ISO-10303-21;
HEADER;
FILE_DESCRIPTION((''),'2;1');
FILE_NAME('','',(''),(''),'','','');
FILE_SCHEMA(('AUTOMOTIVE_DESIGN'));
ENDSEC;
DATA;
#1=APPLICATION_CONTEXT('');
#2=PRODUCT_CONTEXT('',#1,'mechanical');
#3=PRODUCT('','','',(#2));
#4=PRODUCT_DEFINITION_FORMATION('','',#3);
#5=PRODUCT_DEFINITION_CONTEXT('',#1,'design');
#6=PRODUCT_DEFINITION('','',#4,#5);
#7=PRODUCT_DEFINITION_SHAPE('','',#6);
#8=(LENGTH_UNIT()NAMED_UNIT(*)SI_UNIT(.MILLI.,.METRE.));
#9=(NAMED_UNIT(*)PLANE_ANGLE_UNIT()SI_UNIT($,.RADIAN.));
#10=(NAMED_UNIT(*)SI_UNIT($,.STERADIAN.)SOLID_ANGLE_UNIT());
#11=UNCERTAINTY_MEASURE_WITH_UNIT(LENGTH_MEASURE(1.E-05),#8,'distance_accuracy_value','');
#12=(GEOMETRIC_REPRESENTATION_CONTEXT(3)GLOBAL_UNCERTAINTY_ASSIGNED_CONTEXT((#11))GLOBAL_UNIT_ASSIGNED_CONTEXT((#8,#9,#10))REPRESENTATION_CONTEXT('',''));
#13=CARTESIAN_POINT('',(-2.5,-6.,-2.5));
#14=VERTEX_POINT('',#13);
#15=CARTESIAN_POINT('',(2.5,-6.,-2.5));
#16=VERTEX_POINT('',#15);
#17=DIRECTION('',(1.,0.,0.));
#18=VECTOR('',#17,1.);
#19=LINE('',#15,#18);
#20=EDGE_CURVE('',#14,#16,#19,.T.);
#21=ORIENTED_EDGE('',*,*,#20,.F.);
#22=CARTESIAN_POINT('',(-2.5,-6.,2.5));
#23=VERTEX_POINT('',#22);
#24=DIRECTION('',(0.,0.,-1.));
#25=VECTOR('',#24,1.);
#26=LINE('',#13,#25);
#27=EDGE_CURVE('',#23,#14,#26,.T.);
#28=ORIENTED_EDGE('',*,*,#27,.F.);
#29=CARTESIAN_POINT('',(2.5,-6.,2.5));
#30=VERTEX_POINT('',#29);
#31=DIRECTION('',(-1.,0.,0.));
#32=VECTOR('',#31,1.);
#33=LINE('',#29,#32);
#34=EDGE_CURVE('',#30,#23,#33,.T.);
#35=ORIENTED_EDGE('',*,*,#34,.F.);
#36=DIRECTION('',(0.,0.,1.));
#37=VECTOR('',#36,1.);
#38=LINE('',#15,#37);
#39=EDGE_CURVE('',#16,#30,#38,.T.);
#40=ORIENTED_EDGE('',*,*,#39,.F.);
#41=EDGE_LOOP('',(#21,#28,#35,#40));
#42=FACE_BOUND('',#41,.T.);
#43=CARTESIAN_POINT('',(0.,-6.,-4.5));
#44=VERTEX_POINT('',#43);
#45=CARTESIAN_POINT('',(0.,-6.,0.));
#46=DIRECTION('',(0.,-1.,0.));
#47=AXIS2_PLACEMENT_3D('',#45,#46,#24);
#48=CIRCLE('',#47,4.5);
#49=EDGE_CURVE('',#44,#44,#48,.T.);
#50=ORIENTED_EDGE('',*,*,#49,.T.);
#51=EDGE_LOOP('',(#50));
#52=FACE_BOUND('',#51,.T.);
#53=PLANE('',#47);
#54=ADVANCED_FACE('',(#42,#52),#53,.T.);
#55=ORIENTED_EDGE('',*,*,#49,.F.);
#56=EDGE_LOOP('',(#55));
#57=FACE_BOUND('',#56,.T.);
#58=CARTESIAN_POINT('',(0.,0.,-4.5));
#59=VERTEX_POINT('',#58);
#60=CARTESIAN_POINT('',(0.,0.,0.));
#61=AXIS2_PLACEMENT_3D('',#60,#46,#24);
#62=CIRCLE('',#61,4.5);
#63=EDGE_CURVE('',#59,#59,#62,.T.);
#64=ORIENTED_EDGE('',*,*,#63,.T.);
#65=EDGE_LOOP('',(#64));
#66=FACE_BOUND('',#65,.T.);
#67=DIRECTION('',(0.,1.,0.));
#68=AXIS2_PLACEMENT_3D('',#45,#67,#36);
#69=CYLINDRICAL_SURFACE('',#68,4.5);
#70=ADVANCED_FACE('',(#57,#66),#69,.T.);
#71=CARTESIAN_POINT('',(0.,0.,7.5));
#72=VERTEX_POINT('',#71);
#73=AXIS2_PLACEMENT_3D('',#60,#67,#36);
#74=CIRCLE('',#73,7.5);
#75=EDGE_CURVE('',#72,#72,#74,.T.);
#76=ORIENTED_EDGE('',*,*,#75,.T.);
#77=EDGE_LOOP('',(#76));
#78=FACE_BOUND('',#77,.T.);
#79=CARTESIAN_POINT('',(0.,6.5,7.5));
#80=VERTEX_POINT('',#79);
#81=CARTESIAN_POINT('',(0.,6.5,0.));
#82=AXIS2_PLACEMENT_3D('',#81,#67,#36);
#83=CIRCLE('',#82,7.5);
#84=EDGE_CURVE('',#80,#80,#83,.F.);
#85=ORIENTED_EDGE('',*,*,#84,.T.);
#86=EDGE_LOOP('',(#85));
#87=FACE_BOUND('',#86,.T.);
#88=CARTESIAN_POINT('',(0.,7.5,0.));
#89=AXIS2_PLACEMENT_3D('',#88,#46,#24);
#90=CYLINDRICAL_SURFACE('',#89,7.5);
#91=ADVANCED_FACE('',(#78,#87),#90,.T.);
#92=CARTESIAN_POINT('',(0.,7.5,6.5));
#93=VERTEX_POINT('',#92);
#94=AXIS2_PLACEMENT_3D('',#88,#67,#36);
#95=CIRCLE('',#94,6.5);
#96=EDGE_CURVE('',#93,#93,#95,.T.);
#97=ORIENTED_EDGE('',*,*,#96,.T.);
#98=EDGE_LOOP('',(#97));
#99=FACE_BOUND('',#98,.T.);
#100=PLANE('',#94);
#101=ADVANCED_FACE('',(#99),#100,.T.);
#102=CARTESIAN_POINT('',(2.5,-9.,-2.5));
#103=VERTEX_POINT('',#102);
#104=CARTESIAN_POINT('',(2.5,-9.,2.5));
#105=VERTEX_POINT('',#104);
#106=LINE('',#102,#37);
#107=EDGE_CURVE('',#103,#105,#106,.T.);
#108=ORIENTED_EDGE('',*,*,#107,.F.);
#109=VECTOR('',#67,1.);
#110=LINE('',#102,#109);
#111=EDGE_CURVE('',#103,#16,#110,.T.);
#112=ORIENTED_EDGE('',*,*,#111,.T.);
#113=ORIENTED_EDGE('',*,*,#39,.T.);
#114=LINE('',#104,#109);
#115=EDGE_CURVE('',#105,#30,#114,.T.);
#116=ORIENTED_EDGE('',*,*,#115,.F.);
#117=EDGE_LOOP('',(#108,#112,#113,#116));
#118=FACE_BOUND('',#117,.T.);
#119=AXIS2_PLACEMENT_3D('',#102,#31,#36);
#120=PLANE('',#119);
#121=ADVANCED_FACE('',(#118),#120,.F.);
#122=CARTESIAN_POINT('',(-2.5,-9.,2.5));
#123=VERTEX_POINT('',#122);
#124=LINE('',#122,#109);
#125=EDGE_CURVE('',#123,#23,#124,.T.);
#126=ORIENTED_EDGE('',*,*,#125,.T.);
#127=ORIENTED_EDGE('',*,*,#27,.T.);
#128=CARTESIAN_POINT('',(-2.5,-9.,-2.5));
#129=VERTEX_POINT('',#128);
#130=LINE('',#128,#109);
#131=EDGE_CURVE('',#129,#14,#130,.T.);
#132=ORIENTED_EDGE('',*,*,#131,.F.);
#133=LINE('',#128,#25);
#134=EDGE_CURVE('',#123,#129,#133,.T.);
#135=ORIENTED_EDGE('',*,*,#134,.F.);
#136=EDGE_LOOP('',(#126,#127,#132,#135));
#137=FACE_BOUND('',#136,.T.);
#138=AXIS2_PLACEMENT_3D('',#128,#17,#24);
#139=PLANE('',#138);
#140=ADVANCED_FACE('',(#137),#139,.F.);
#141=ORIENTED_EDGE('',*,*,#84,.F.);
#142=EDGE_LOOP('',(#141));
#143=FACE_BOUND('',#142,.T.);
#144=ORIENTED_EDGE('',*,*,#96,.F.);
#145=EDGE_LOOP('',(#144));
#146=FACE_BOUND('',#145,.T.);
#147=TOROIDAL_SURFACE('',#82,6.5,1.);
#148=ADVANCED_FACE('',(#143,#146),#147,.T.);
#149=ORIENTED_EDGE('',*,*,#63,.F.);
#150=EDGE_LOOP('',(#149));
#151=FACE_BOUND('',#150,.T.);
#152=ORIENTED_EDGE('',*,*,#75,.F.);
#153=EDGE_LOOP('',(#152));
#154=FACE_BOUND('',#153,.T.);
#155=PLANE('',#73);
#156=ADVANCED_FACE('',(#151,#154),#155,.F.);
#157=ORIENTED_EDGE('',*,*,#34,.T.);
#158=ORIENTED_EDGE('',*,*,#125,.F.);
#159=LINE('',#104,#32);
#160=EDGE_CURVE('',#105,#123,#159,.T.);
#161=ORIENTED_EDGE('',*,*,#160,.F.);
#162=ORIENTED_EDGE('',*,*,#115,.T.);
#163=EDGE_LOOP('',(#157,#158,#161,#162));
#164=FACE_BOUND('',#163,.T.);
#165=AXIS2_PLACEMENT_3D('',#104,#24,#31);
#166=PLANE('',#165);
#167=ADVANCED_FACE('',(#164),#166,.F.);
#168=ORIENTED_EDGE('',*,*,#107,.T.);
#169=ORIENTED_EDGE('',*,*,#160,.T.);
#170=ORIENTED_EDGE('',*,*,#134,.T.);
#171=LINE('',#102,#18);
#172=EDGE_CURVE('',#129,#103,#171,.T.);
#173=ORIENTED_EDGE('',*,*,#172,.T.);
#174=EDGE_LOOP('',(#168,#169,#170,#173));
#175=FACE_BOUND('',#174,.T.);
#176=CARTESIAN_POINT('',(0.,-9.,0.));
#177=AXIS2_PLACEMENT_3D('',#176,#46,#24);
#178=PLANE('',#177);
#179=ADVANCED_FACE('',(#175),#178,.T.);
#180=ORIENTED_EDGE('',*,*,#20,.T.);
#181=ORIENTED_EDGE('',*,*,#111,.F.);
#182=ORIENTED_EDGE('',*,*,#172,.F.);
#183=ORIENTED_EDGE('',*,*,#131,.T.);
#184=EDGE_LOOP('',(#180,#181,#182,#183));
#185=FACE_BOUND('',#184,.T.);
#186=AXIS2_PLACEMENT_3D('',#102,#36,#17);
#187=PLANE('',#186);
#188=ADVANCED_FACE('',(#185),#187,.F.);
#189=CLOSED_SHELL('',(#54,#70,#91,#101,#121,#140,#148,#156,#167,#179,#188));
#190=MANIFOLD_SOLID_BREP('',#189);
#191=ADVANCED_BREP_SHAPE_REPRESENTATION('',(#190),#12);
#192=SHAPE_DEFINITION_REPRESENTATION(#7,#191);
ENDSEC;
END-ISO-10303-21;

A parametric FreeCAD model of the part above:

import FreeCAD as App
import Part
import Sketcher
Q = App.Units.Quantity


def edges_at(feature, points):
    """Names of the edges that pass closest to the given points."""
    edges = feature.Shape.Edges
    near = lambda p: min(range(len(edges)), key=lambda i: edges[i].distToShape(Part.Vertex(*p))[0])
    return sorted({f"Edge{near(p) + 1}" for p in points})

doc = App.newDocument("Part")
body = doc.addObject("PartDesign::Body", "Body")

# Sketch on XZ plane
sketch1 = body.newObject("Sketcher::SketchObject", "Sketch")
sketch1.AttachmentSupport = (doc.getObject("XZ_Plane"), [""])
sketch1.MapMode = "FlatFace"
sketch1.addGeometry(Part.Circle(App.Vector(0, 0, 0), App.Vector(0, 0, 1), 7.5), False)
sketch1.addConstraint([
    Sketcher.Constraint("Coincident", 0, 3, -1, 1),
    Sketcher.Constraint("Diameter", 0, Q("15 mm")),
])
pad1 = body.newObject("PartDesign::Pad", "Pad")
pad1.Profile = sketch1
pad1.Length = 7.5
pad1.Reversed = True
doc.recompute()

fillet = body.newObject("PartDesign::Fillet", "Fillet")
fillet.Base = (pad1, edges_at(pad1, [(0, 7.5, -7.5)]))
fillet.Radius = 1

# Sketch on XZ plane
sketch2 = body.newObject("Sketcher::SketchObject", "Sketch001")
sketch2.AttachmentSupport = (doc.getObject("XZ_Plane"), [""])
sketch2.MapMode = "FlatFace"
sketch2.addGeometry(Part.Circle(App.Vector(0, 0, 0), App.Vector(0, 0, 1), 4.5), False)
sketch2.addConstraint([
    Sketcher.Constraint("Coincident", 0, 3, -1, 1),
    Sketcher.Constraint("Diameter", 0, Q("9 mm")),
])
pad2 = body.newObject("PartDesign::Pad", "Pad001")
pad2.Profile = sketch2
pad2.Length = 6

# Sketch on XZ plane
sketch3 = body.newObject("Sketcher::SketchObject", "Sketch002")
sketch3.AttachmentSupport = (doc.getObject("XZ_Plane"), [""])
sketch3.MapMode = "FlatFace"
sketch3.AttachmentOffset = App.Placement(App.Vector(0, 0, 6), App.Rotation())
sketch3.addGeometry([
    Part.LineSegment(App.Vector(2.5, -2.5, 0), App.Vector(2.5, 2.5, 0)),
    Part.LineSegment(App.Vector(2.5, 2.5, 0), App.Vector(-2.5, 2.5, 0)),
    Part.LineSegment(App.Vector(-2.5, 2.5, 0), App.Vector(-2.5, -2.5, 0)),
    Part.LineSegment(App.Vector(-2.5, -2.5, 0), App.Vector(2.5, -2.5, 0)),
], False)
sketch3.addConstraint([
    Sketcher.Constraint("Coincident", 0, 2, 1, 1),
    Sketcher.Constraint("Coincident", 1, 2, 2, 1),
    Sketcher.Constraint("Coincident", 2, 2, 3, 1),
    Sketcher.Constraint("Coincident", 3, 2, 0, 1),
    Sketcher.Constraint("Vertical", 0),
    Sketcher.Constraint("Horizontal", 1),
    Sketcher.Constraint("Vertical", 2),
    Sketcher.Constraint("Horizontal", 3),
    Sketcher.Constraint("Symmetric", 0, 2, 2, 2, -1, 1),
    Sketcher.Constraint("Equal", 3, 0),
    Sketcher.Constraint("DistanceX", 1, 2, 1, 1, Q("5 mm")),
])
pad3 = body.newObject("PartDesign::Pad", "Pad002")
pad3.Profile = sketch3
pad3.Length = 3

doc.recompute()
